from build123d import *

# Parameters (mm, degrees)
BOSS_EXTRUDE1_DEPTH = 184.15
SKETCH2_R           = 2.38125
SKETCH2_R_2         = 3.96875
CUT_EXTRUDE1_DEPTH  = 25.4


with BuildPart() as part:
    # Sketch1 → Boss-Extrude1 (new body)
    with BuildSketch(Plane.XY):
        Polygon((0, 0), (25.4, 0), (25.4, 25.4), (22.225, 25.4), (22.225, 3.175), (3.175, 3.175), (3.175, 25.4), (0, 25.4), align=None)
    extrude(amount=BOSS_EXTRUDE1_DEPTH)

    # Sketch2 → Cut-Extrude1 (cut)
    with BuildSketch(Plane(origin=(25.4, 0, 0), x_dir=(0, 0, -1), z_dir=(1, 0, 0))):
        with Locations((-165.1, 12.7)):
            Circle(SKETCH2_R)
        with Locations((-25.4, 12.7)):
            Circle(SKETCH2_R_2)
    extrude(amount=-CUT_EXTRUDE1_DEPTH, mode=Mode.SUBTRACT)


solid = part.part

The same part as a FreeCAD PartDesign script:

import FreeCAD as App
import Part
import Sketcher

V = App.Vector
Q = App.Units.Quantity

doc = App.newDocument("Part")
body = doc.addObject("PartDesign::Body", "Body")

# Sketch on XY plane
sketch1 = body.newObject("Sketcher::SketchObject", "Sketch")
sketch1.AttachmentSupport = (doc.getObject("XY_Plane"), [""])
sketch1.MapMode = "FlatFace"
sketch1.addGeometry([
    Part.LineSegment(V(0, 0, 0), V(25.4, 0, 0)),  # 0
    Part.LineSegment(V(25.4, 0, 0), V(25.4, 25.4, 0)),  # 1
    Part.LineSegment(V(25.4, 25.4, 0), V(22.2, 25.4, 0)),  # 2
    Part.LineSegment(V(22.2, 25.4, 0), V(22.2, 3.2, 0)),  # 3
    Part.LineSegment(V(22.2, 3.2, 0), V(3.2, 3.2, 0)),  # 4
    Part.LineSegment(V(3.2, 3.2, 0), V(3.2, 25.4, 0)),  # 5
    Part.LineSegment(V(3.2, 25.4, 0), V(0, 25.4, 0)),  # 6
    Part.LineSegment(V(0, 25.4, 0), V(0, 0, 0)),  # 7
], False)
sketch1.addConstraint([
    Sketcher.Constraint("Coincident", 0, 2, 1, 1),
    Sketcher.Constraint("Coincident", 1, 2, 2, 1),
    Sketcher.Constraint("Coincident", 2, 2, 3, 1),
    Sketcher.Constraint("Coincident", 3, 2, 4, 1),
    Sketcher.Constraint("Coincident", 4, 2, 5, 1),
    Sketcher.Constraint("Coincident", 5, 2, 6, 1),
    Sketcher.Constraint("Coincident", 6, 2, 7, 1),
    Sketcher.Constraint("Coincident", 7, 2, 0, 1),
    Sketcher.Constraint("Horizontal", 0),
    Sketcher.Constraint("Vertical", 1),
    Sketcher.Constraint("Horizontal", 2),
    Sketcher.Constraint("Vertical", 3),
    Sketcher.Constraint("Horizontal", 4),
    Sketcher.Constraint("Vertical", 5),
    Sketcher.Constraint("Horizontal", 6),
    Sketcher.Constraint("Vertical", 7),
    Sketcher.Constraint("Coincident", 7, 2, -1, 1),
    Sketcher.Constraint("Horizontal", 2, 2, 5, 2),
    Sketcher.Constraint("Equal", 2, 6),
    Sketcher.Constraint("Equal", 0, 1),
    Sketcher.Constraint("DistanceX", 0, 1, 0, 2, Q("1 in")),
    Sketcher.Constraint("DistanceX", 4, 2, 4, 1, Q("0.75 in")),
    Sketcher.Constraint("DistanceY", 3, 2, 3, 1, Q("0.875 in")),
])
pad1 = body.newObject("PartDesign::Pad", "Pad")
pad1.Profile = sketch1
pad1.Length = Q("7.25 in")

# Sketch on YZ plane
sketch2 = body.newObject("Sketcher::SketchObject", "Sketch001")
sketch2.AttachmentSupport = (doc.getObject("YZ_Plane"), [""])
sketch2.MapMode = "FlatFace"
sketch2.AttachmentOffset = App.Placement(V(0, 0, 1 * 25.4), App.Rotation())
sketch2.addGeometry([
    Part.Circle(V(12.7, 165.1, 0), V(0, 0, 1), 2.4),
    Part.Circle(V(12.7, 25.4, 0), V(0, 0, 1), 4),
], False)
sketch2.addConstraint([
    Sketcher.Constraint("Vertical", 0, 3, 1, 3),
    Sketcher.Constraint("Diameter", 0, Q("0.1875 in")),
    Sketcher.Constraint("Diameter", 1, Q("0.3125 in")),
    Sketcher.Constraint("DistanceY", -1, 1, 1, 3, Q("1 in")),
    Sketcher.Constraint("DistanceX", -1, 1, 0, 3, Q("0.5 in")),
    Sketcher.Constraint("DistanceY", -1, 1, 0, 3, Q("6.5 in")),
])
pocket1 = body.newObject("PartDesign::Pocket", "Pocket")
pocket1.Profile = sketch2
pocket1.Length = Q("1 in")

doc.recompute()
